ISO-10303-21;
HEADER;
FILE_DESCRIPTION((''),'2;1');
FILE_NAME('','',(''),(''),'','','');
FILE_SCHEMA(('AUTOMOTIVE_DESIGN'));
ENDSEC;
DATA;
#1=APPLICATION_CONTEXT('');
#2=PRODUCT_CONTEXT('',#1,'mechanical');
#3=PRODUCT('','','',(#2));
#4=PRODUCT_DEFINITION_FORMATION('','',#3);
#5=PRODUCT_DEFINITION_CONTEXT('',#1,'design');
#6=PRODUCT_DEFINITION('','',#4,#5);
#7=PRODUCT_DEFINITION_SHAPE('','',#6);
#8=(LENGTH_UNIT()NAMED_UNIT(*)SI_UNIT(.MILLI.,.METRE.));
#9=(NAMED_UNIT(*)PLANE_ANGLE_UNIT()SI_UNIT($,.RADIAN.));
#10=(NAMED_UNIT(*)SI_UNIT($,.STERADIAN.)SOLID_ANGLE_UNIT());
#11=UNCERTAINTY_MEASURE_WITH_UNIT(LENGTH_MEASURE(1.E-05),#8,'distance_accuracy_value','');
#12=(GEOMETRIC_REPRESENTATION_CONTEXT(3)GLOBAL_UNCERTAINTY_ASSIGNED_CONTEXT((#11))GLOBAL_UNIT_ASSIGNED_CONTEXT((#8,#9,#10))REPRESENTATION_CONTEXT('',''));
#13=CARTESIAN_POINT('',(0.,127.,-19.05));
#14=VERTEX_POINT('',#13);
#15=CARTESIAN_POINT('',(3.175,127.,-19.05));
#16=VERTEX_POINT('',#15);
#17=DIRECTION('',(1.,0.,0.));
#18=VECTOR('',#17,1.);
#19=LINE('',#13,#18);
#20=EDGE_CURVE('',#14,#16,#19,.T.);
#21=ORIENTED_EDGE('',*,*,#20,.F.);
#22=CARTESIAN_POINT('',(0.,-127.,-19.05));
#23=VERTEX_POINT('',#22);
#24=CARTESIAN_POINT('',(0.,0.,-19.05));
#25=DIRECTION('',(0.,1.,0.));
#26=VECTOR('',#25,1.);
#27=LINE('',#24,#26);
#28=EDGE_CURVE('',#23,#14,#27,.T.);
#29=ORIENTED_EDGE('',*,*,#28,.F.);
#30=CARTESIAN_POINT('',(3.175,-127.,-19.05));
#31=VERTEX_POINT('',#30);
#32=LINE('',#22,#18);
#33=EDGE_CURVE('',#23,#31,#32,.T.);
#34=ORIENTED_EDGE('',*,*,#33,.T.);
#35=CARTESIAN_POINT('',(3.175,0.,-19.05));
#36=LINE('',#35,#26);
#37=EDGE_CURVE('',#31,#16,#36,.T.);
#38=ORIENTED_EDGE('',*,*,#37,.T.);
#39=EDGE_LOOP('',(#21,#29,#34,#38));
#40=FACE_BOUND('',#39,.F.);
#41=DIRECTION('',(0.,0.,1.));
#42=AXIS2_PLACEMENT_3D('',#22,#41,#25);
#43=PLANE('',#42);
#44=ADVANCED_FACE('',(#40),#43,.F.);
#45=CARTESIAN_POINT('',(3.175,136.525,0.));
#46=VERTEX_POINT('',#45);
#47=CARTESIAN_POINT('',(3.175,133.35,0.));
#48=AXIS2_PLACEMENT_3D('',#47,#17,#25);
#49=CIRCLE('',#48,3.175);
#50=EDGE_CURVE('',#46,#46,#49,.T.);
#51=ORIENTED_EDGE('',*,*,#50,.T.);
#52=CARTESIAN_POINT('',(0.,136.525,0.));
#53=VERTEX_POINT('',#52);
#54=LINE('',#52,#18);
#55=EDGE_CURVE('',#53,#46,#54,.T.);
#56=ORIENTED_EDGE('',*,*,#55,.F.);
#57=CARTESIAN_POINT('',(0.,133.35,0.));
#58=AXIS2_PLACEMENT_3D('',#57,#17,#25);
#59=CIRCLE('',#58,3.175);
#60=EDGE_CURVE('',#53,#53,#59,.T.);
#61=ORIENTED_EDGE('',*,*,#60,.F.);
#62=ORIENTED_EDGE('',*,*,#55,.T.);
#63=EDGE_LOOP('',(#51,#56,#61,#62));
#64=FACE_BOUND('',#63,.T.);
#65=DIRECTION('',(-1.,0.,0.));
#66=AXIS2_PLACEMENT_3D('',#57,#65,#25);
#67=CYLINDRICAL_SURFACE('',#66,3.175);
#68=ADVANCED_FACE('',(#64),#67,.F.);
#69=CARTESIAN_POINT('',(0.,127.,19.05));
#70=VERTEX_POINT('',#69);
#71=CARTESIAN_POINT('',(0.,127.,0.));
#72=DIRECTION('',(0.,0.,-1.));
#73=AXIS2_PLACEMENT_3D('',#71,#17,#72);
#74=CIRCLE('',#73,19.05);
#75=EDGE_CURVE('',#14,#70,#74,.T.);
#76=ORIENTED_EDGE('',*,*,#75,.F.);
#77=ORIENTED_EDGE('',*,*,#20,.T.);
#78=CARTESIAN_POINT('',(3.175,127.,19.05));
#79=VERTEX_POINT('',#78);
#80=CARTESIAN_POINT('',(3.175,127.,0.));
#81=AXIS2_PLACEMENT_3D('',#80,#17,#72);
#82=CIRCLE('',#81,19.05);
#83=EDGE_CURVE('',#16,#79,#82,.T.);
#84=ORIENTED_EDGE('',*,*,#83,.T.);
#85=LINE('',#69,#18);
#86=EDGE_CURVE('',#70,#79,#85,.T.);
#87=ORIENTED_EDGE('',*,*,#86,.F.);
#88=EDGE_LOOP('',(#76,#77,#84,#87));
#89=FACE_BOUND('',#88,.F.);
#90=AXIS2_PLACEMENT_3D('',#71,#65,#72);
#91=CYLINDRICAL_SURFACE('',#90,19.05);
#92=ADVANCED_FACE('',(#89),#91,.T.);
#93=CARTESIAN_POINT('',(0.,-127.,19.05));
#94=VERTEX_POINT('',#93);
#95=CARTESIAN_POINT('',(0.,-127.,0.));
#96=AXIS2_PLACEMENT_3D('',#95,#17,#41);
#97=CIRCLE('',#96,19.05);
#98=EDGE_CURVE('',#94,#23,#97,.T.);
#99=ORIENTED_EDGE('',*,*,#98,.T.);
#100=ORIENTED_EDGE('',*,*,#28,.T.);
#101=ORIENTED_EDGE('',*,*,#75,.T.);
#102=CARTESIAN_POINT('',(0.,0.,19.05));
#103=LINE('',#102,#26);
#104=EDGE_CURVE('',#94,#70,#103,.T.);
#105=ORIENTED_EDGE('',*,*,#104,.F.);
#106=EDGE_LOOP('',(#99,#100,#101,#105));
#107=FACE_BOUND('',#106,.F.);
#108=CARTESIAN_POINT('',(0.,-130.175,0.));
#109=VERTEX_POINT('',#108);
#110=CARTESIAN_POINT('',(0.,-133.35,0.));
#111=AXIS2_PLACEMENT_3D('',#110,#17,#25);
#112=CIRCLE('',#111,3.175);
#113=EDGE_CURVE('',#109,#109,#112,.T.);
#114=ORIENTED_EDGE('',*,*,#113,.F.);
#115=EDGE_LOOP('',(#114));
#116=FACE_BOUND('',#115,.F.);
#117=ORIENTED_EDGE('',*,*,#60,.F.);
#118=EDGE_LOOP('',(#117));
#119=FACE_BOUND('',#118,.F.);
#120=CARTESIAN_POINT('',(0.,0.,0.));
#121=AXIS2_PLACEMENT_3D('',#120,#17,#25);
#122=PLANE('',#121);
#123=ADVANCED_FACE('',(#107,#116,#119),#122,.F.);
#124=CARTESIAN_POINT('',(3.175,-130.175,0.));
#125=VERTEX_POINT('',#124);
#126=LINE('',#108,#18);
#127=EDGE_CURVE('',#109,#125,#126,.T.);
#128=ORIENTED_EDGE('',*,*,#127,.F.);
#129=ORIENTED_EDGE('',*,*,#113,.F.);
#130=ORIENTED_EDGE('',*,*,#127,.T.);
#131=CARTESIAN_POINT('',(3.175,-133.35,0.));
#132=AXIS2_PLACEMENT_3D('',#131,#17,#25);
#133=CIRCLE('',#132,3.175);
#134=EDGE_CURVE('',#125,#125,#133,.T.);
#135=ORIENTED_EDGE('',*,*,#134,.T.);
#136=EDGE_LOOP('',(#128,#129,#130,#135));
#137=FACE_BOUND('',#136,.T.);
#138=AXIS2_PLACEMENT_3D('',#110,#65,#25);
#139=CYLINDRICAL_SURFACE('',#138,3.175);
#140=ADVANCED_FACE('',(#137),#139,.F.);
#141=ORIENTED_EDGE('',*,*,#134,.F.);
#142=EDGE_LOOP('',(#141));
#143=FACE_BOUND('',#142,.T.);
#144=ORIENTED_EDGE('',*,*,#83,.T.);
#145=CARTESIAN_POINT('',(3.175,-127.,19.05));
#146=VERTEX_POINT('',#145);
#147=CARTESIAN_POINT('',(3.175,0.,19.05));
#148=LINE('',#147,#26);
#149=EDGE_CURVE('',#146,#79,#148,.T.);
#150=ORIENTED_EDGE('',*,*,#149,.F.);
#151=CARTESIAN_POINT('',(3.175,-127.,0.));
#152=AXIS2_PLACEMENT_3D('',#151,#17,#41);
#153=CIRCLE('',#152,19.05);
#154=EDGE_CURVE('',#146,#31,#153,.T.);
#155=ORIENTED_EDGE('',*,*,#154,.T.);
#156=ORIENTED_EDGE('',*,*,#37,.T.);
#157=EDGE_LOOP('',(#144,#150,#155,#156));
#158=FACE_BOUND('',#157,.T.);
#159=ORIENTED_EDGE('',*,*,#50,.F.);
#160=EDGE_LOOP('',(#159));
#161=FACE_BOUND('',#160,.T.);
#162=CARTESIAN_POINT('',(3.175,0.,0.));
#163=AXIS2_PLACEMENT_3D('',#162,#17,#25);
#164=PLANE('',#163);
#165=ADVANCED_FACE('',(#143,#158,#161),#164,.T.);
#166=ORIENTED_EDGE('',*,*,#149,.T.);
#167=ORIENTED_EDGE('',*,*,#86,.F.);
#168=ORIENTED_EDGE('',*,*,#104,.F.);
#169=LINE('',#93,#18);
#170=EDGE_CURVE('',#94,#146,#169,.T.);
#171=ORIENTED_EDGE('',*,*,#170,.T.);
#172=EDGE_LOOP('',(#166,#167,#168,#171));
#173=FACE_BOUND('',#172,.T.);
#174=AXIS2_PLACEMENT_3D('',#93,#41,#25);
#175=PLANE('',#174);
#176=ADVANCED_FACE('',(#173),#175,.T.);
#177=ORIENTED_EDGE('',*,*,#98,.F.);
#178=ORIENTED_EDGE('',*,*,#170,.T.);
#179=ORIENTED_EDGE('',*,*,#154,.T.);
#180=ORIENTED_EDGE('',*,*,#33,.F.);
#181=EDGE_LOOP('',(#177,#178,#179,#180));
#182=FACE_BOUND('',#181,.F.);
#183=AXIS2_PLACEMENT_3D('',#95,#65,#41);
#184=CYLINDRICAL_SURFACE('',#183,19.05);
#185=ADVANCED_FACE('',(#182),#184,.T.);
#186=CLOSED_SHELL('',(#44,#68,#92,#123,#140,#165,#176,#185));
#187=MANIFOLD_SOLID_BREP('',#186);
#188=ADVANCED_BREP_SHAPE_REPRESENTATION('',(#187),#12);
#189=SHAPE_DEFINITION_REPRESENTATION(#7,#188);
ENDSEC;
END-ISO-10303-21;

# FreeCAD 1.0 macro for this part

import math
import FreeCAD as App
import Part
import Sketcher
Q = App.Units.Quantity

doc = App.newDocument("Part")
body = doc.addObject("PartDesign::Body", "Body")

# Sketch on YZ plane
sketch1 = doc.addObject("Sketcher::SketchObject", "Sketch")
body.addObject(sketch1)
sketch1.AttachmentSupport = (doc.YZ_Plane, [""])
sketch1.MapMode = "FlatFace"
sketch1.addGeometry(Part.LineSegment(App.Vector(-127, -19.1, 0), App.Vector(127, -19.1, 0)), False)
sketch1.addGeometry(Part.ArcOfCircle(Part.Circle(App.Vector(127, 0, 0), App.Vector(0, 0, 1), 19.1), math.radians(-90), math.radians(90)), False)
sketch1.addGeometry(Part.LineSegment(App.Vector(127, 19.1, 0), App.Vector(-127, 19.1, 0)), False)
sketch1.addGeometry(Part.ArcOfCircle(Part.Circle(App.Vector(-127, 0, 0), App.Vector(0, 0, 1), 19.1), math.radians(90), math.radians(270)), False)
sketch1.addGeometry(Part.Circle(App.Vector(-133.3, 0, 0), App.Vector(0, 0, 1), 3.2), False)
sketch1.addGeometry(Part.Circle(App.Vector(133.3, 0, 0), App.Vector(0, 0, 1), 3.2), False)
sketch1.addConstraint(Sketcher.Constraint("Tangent", 0, 2, 1, 1))
sketch1.addConstraint(Sketcher.Constraint("Tangent", 1, 2, 2, 1))
sketch1.addConstraint(Sketcher.Constraint("Tangent", 2, 2, 3, 1))
sketch1.addConstraint(Sketcher.Constraint("Tangent", 3, 2, 0, 1))
sketch1.addConstraint(Sketcher.Constraint("Horizontal", 0))
sketch1.addConstraint(Sketcher.Constraint("Horizontal", 2))
sketch1.addConstraint(Sketcher.Constraint("Equal", 4, 5))
sketch1.addConstraint(Sketcher.Constraint("Symmetric", 1, 3, 3, 3, -1, 1))
sketch1.addConstraint(Sketcher.Constraint("Symmetric", 4, 3, 5, 3, -1, 1))
sketch1.addConstraint(Sketcher.Constraint("PointOnObject", 4, 3, -1))
sketch1.addConstraint(Sketcher.Constraint("Diameter", 4, Q("0.25 in")))
sketch1.addConstraint(Sketcher.Constraint("DistanceX", 0, 1, 0, 2, Q("10 in")))
sketch1.addConstraint(Sketcher.Constraint("Radius", 1, Q("0.75 in")))
sketch1.addConstraint(Sketcher.Constraint("DistanceX", 4, 3, 5, 3, Q("10.5 in")))
pad1 = doc.addObject("PartDesign::Pad", "Pad")
body.addObject(pad1)
pad1.Profile = sketch1
pad1.Length = Q("0.125 in")

doc.recompute()
